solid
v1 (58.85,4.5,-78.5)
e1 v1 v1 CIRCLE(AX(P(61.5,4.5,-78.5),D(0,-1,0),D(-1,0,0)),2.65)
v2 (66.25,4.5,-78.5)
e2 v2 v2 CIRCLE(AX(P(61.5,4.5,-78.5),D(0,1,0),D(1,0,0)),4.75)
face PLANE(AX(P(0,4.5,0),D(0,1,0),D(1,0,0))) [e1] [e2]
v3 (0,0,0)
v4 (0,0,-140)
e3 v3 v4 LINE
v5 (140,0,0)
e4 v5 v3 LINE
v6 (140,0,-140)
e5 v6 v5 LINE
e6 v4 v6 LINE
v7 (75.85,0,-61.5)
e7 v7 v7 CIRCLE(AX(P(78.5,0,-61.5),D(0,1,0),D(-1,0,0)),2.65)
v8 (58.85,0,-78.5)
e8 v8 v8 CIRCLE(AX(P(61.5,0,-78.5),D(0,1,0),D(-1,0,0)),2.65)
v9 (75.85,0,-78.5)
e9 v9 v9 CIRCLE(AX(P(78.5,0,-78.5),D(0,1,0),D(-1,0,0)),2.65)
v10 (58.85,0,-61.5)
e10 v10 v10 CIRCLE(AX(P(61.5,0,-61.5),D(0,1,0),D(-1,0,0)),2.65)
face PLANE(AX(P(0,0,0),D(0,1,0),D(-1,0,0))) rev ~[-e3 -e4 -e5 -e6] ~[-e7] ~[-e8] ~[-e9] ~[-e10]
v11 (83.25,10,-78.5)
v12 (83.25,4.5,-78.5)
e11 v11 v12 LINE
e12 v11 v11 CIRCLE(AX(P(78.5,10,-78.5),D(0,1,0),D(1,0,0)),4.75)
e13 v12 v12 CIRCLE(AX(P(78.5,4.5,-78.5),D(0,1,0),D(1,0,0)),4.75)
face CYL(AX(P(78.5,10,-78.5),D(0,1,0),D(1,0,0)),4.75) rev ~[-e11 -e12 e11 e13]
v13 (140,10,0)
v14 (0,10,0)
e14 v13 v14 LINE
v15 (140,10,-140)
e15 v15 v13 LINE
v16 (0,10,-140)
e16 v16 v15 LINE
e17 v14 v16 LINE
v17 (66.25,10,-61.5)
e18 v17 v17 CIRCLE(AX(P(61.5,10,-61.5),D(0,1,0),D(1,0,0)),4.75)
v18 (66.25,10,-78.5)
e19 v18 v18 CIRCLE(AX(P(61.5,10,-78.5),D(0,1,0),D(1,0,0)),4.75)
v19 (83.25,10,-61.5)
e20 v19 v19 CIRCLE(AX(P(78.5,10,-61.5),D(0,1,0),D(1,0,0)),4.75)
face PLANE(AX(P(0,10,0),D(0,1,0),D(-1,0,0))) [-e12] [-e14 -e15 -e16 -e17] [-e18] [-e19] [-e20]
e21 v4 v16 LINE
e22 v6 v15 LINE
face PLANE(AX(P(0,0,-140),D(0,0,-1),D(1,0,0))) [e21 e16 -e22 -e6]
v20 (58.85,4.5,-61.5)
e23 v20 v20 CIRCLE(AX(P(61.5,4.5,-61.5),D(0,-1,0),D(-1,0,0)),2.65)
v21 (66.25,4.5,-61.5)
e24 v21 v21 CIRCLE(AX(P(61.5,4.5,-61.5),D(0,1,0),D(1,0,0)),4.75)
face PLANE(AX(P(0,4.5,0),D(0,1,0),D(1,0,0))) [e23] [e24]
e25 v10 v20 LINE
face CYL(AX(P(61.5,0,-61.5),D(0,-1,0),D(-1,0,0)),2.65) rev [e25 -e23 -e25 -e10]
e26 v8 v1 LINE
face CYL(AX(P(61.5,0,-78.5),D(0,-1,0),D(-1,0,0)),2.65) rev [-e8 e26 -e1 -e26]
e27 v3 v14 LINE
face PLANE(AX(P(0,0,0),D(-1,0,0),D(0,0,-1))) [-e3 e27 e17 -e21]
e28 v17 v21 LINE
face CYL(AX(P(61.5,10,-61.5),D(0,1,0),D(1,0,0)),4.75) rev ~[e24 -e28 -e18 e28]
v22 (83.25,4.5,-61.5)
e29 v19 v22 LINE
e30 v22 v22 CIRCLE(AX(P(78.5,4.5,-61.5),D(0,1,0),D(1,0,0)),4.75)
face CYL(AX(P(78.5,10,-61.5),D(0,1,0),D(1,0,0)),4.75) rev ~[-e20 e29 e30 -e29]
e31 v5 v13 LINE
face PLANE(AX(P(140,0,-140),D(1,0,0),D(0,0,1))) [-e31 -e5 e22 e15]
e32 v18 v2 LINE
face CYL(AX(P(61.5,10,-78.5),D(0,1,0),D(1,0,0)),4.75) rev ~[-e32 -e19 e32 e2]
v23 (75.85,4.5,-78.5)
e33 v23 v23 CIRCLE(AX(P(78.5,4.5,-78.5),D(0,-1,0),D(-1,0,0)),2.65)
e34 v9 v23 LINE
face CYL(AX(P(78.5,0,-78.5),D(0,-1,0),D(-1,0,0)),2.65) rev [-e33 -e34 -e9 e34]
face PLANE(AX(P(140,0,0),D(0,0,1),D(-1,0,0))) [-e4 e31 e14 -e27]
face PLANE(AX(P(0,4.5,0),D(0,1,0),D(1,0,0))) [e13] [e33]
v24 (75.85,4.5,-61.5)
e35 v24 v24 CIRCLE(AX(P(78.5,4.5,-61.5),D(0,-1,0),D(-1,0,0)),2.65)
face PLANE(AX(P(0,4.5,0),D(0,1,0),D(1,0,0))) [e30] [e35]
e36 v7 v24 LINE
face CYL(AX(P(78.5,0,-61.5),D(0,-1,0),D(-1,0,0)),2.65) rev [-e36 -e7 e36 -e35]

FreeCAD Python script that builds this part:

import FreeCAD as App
import Part
import Sketcher
from FreeCAD import Vector
Q = App.Units.Quantity

doc = App.newDocument("Part")
params = doc.addObject("Spreadsheet::Sheet", "Params")
for row, (alias, value) in enumerate([
    ("sketch1_diameter", "5.3 mm"),
    ("sketch1_width", "140 mm"),
    ("pad1_length", "10 mm"),
    ("sketch2_diameter", "9.5 mm"),
    ("pocket1_length", "5.5 mm"),
], start=1):
    params.set(f"A{row}", alias)
    params.set(f"B{row}", "=" + value)
    params.setAlias(f"B{row}", alias)

body = doc.addObject("PartDesign::Body", "Body")

sketch1 = doc.addObject("Sketcher::SketchObject", "Sketch")
body.addObject(sketch1)
sketch1.AttachmentSupport = (doc.XZ_Plane, [""])
sketch1.MapMode = "FlatFace"
sketch1.addGeometry(Part.LineSegment(Vector(140, -140, 0), Vector(0, -140, 0)), False)
sketch1.addGeometry(Part.LineSegment(Vector(0, -140, 0), Vector(0, 0, 0)), False)
sketch1.addGeometry(Part.LineSegment(Vector(0, 0, 0), Vector(140, 0, 0)), False)
sketch1.addGeometry(Part.LineSegment(Vector(140, 0, 0), Vector(140, -140, 0)), False)
sketch1.addGeometry(Part.Circle(Vector(78.5, -78.5, 0), Vector(0, 0, 1), 2.6), False)
sketch1.addGeometry(Part.Circle(Vector(61.5, -78.5, 0), Vector(0, 0, 1), 2.6), False)
sketch1.addGeometry(Part.Circle(Vector(78.5, -61.5, 0), Vector(0, 0, 1), 2.6), False)
sketch1.addGeometry(Part.Circle(Vector(61.5, -61.5, 0), Vector(0, 0, 1), 2.6), False)
sketch1.addConstraint(Sketcher.Constraint("Coincident", 0, 2, 1, 1))
sketch1.addConstraint(Sketcher.Constraint("Coincident", 1, 2, 2, 1))
sketch1.addConstraint(Sketcher.Constraint("Coincident", 2, 2, 3, 1))
sketch1.addConstraint(Sketcher.Constraint("Coincident", 3, 2, 0, 1))
sketch1.addConstraint(Sketcher.Constraint("Horizontal", 0))
sketch1.addConstraint(Sketcher.Constraint("Vertical", 1))
sketch1.addConstraint(Sketcher.Constraint("Horizontal", 2))
sketch1.addConstraint(Sketcher.Constraint("Vertical", 3))
sketch1.addConstraint(Sketcher.Constraint("Coincident", 1, 2, -1, 1))
sketch1.addConstraint(Sketcher.Constraint("Equal", 4, 5))
sketch1.addConstraint(Sketcher.Constraint("Equal", 5, 6))
sketch1.addConstraint(Sketcher.Constraint("Equal", 6, 7))
sketch1.addConstraint(Sketcher.Constraint("Horizontal", 4, 3, 5, 3))
sketch1.addConstraint(Sketcher.Constraint("Horizontal", 6, 3, 7, 3))
sketch1.addConstraint(Sketcher.Constraint("Vertical", 4, 3, 6, 3))
sketch1.addConstraint(Sketcher.Constraint("Vertical", 5, 3, 7, 3))
sketch1.addConstraint(Sketcher.Constraint("Equal", 2, 1))
sketch1.addConstraint(Sketcher.Constraint("Diameter", 4, Q("5.3 mm")))
sketch1.addConstraint(Sketcher.Constraint("DistanceX", 0, 2, 0, 1, Q("140 mm")))
sketch1.addConstraint(Sketcher.Constraint("DistanceX", 5, 3, 4, 3, Q("17 mm")))
sketch1.addConstraint(Sketcher.Constraint("DistanceY", 4, 3, 6, 3, Q("17 mm")))
sketch1.addConstraint(Sketcher.Constraint("DistanceX", -1, 1, 4, 3, Q("78.5 mm")))
sketch1.addConstraint(Sketcher.Constraint("DistanceY", 4, 3, -1, 1, Q("78.5 mm")))
sketch1.setExpression("Constraints[17]", "Params.sketch1_diameter")
sketch1.setExpression("Constraints[18]", "Params.sketch1_width")
pad1 = doc.addObject("PartDesign::Pad", "Pad")
body.addObject(pad1)
pad1.Profile = sketch1
pad1.setExpression("Length", "Params.pad1_length")
pad1.Reversed = True

sketch2 = doc.addObject("Sketcher::SketchObject", "Sketch001")
body.addObject(sketch2)
sketch2.AttachmentSupport = (doc.XZ_Plane, [""])
sketch2.MapMode = "FlatFace"
sketch2.AttachmentOffset = App.Placement(Vector(0, 0, -10), App.Rotation())
sketch2.addGeometry(Part.Circle(Vector(61.5, -61.5, 0), Vector(0, 0, 1), 4.8), False)
sketch2.addGeometry(Part.Circle(Vector(78.5, -61.5, 0), Vector(0, 0, 1), 4.8), False)
sketch2.addGeometry(Part.Circle(Vector(78.5, -78.5, 0), Vector(0, 0, 1), 4.8), False)
sketch2.addGeometry(Part.Circle(Vector(61.5, -78.5, 0), Vector(0, 0, 1), 4.8), False)
sketch2.addConstraint(Sketcher.Constraint("Equal", 0, 1))
sketch2.addConstraint(Sketcher.Constraint("Equal", 1, 2))
sketch2.addConstraint(Sketcher.Constraint("Equal", 2, 3))
sketch2.addConstraint(Sketcher.Constraint("Horizontal", 0, 3, 1, 3))
sketch2.addConstraint(Sketcher.Constraint("Horizontal", 2, 3, 3, 3))
sketch2.addConstraint(Sketcher.Constraint("Vertical", 1, 3, 2, 3))
sketch2.addConstraint(Sketcher.Constraint("Vertical", 0, 3, 3, 3))
sketch2.addConstraint(Sketcher.Constraint("Diameter", 0, Q("9.5 mm")))
sketch2.addConstraint(Sketcher.Constraint("DistanceX", 0, 3, 1, 3, Q("17 mm")))
sketch2.addConstraint(Sketcher.Constraint("DistanceY", 2, 3, 1, 3, Q("17 mm")))
sketch2.addConstraint(Sketcher.Constraint("DistanceX", -1, 1, 0, 3, Q("61.5 mm")))
sketch2.addConstraint(Sketcher.Constraint("DistanceY", 0, 3, -1, 1, Q("61.5 mm")))
sketch2.setExpression("Constraints[7]", "Params.sketch2_diameter")
pocket1 = doc.addObject("PartDesign::Pocket", "Pocket")
body.addObject(pocket1)
pocket1.Profile = sketch2
pocket1.setExpression("Length", "Params.pocket1_length")
pocket1.Reversed = True

doc.recompute()
